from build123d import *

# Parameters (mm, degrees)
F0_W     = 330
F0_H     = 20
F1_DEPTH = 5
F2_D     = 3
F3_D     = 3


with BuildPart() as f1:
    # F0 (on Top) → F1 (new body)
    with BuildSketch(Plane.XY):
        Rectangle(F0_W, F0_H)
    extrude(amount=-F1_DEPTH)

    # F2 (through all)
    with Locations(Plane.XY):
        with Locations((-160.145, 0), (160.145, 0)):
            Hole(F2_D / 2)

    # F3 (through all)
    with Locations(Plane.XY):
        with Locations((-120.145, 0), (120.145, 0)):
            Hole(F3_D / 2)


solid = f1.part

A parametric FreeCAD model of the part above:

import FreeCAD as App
import Part
import Sketcher
from FreeCAD import Vector
Q = App.Units.Quantity


def add_polygon(sketch, points):
    """Adds a closed chain of lines whose ends are joined by coincident constraints."""
    first, n = sketch.GeometryCount, len(points)
    for a, b in zip(points, points[1:] + points[:1]):
        sketch.addGeometry(Part.LineSegment(App.Vector(*a, 0), App.Vector(*b, 0)), False)
    for i in range(n):
        sketch.addConstraint(Sketcher.Constraint("Coincident", first + i, 2, first + (i + 1) % n, 1))

doc = App.newDocument("Part")
params = doc.addObject("Spreadsheet::Sheet", "Params")
for row, (alias, value) in enumerate([
    ("sketch1_width", "330 mm"),
    ("sketch1_height", "20 mm"),
    ("pad1_length", "5 mm"),
    ("sketch2_diameter", "3 mm"),
    ("hole_diameter", "3 mm"),
    ("sketch3_diameter", "3 mm"),
    ("hole2_diameter", "3 mm"),
], start=1):
    params.set(f"A{row}", alias)
    params.set(f"B{row}", "=" + value)
    params.setAlias(f"B{row}", alias)

body = doc.addObject("PartDesign::Body", "Body")

# Sketch on XY plane
sketch1 = body.newObject("Sketcher::SketchObject", "Sketch")
sketch1.AttachmentSupport = (doc.getObject("XY_Plane"), [""])
sketch1.MapMode = "FlatFace"
add_polygon(sketch1, [(-165, 10), (-165, -10), (165, -10), (165, 10)])  # lines 0-3
sketch1.addConstraint([
    Sketcher.Constraint("Vertical", 0),
    Sketcher.Constraint("Horizontal", 1),
    Sketcher.Constraint("Vertical", 2),
    Sketcher.Constraint("Horizontal", 3),
    Sketcher.Constraint("Symmetric", 0, 2, 2, 2, -1, 1),
    Sketcher.Constraint("DistanceX", 1, 1, 1, 2, Q("330 mm")),
    Sketcher.Constraint("DistanceY", 0, 2, 0, 1, Q("20 mm")),
])
sketch1.setExpression("Constraints[9]", "Params.sketch1_width")
sketch1.setExpression("Constraints[10]", "Params.sketch1_height")
pad1 = body.newObject("PartDesign::Pad", "Pad")
pad1.Profile = sketch1
pad1.setExpression("Length", "Params.pad1_length")
pad1.Reversed = True

# Sketch on XY plane
sketch2 = body.newObject("Sketcher::SketchObject", "Sketch001")
sketch2.AttachmentSupport = (doc.getObject("XY_Plane"), [""])
sketch2.MapMode = "FlatFace"
sketch2.addGeometry([
    Part.Circle(Vector(-160.1, 0, 0), Vector(0, 0, 1), 1.5),
    Part.Circle(Vector(160.1, 0, 0), Vector(0, 0, 1), 1.5),
], False)
sketch2.addConstraint([
    Sketcher.Constraint("Equal", 0, 1),
    Sketcher.Constraint("Symmetric", 0, 3, 1, 3, -1, 1),
    Sketcher.Constraint("PointOnObject", 0, 3, -1),
    Sketcher.Constraint("Diameter", 0, Q("3 mm")),
    Sketcher.Constraint("DistanceX", 0, 3, 1, 3, Q("320.29 mm")),
])
sketch2.setExpression("Constraints[3]", "Params.sketch2_diameter")
doc.recompute()
hole = body.newObject("PartDesign::Hole", "Hole")
hole.Profile = sketch2
hole.ThreadType = "None"
hole.setExpression("Diameter", "Params.hole_diameter")
hole.DepthType = "ThroughAll"

# Sketch on XY plane
sketch3 = body.newObject("Sketcher::SketchObject", "Sketch002")
sketch3.AttachmentSupport = (doc.getObject("XY_Plane"), [""])
sketch3.MapMode = "FlatFace"
sketch3.addGeometry([
    Part.Circle(Vector(-120.1, 0, 0), Vector(0, 0, 1), 1.5),
    Part.Circle(Vector(120.1, 0, 0), Vector(0, 0, 1), 1.5),
], False)
sketch3.addConstraint([
    Sketcher.Constraint("Equal", 0, 1),
    Sketcher.Constraint("Symmetric", 0, 3, 1, 3, -1, 1),
    Sketcher.Constraint("PointOnObject", 0, 3, -1),
    Sketcher.Constraint("Diameter", 0, Q("3 mm")),
    Sketcher.Constraint("DistanceX", 0, 3, 1, 3, Q("240.29 mm")),
])
sketch3.setExpression("Constraints[3]", "Params.sketch3_diameter")
doc.recompute()
hole2 = body.newObject("PartDesign::Hole", "Hole001")
hole2.Profile = sketch3
hole2.ThreadType = "None"
hole2.setExpression("Diameter", "Params.hole2_diameter")
hole2.DepthType = "ThroughAll"

doc.recompute()
